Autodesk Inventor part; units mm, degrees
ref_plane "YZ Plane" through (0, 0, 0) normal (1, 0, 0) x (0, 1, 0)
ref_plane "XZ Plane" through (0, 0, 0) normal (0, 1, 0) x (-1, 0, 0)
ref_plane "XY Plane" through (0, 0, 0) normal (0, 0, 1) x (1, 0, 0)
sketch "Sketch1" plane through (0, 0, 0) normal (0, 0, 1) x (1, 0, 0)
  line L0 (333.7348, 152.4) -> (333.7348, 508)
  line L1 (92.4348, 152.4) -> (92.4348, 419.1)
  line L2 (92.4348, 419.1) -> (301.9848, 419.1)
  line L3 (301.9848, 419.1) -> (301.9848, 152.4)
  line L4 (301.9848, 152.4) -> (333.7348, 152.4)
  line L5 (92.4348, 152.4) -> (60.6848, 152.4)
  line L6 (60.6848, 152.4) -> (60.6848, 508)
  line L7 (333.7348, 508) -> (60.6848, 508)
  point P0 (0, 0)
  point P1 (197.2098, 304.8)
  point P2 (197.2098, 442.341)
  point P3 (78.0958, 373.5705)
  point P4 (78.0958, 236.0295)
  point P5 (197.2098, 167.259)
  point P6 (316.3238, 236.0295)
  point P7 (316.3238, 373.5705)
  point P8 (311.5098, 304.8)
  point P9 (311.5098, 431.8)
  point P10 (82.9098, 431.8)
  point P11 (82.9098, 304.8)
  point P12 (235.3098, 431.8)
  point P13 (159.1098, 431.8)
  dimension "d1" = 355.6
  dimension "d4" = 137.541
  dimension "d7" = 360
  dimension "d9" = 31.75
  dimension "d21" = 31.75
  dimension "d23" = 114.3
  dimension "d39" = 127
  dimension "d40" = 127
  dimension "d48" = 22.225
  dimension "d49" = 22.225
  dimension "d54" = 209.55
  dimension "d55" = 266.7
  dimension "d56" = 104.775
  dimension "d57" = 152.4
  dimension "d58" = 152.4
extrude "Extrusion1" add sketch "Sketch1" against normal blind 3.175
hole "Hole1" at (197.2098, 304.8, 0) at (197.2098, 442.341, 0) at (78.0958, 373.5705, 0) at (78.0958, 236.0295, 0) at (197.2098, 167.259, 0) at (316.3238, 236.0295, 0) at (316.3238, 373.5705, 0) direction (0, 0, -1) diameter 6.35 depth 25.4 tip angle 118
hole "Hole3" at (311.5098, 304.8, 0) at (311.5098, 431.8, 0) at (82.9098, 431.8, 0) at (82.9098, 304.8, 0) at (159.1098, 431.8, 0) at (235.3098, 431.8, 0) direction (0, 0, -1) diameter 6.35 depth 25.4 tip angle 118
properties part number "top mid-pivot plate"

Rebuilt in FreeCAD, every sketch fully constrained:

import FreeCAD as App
import Part
import Sketcher
Q = App.Units.Quantity

doc = App.newDocument("Part")
body = doc.addObject("PartDesign::Body", "Body")

sketch1 = body.newObject("Sketcher::SketchObject", "Sketch")
sketch1.AttachmentSupport = (doc.getObject("XY_Plane"), [""])
sketch1.MapMode = "FlatFace"
sketch1.addGeometry(Part.LineSegment(App.Vector(302, 152, 0), App.Vector(334, 152, 0)), False)
sketch1.addGeometry(Part.LineSegment(App.Vector(334, 152, 0), App.Vector(334, 508, 0)), False)
sketch1.addGeometry(Part.LineSegment(App.Vector(334, 508, 0), App.Vector(61, 508, 0)), False)
sketch1.addGeometry(Part.LineSegment(App.Vector(61, 508, 0), App.Vector(61, 152, 0)), False)
sketch1.addGeometry(Part.LineSegment(App.Vector(61, 152, 0), App.Vector(92, 152, 0)), False)
sketch1.addGeometry(Part.LineSegment(App.Vector(92, 152, 0), App.Vector(92, 419, 0)), False)
sketch1.addGeometry(Part.LineSegment(App.Vector(92, 419, 0), App.Vector(302, 419, 0)), False)
sketch1.addGeometry(Part.LineSegment(App.Vector(302, 419, 0), App.Vector(302, 152, 0)), False)
sketch1.addConstraint(Sketcher.Constraint("Coincident", 0, 2, 1, 1))
sketch1.addConstraint(Sketcher.Constraint("Coincident", 1, 2, 2, 1))
sketch1.addConstraint(Sketcher.Constraint("Coincident", 2, 2, 3, 1))
sketch1.addConstraint(Sketcher.Constraint("Coincident", 3, 2, 4, 1))
sketch1.addConstraint(Sketcher.Constraint("Coincident", 4, 2, 5, 1))
sketch1.addConstraint(Sketcher.Constraint("Coincident", 5, 2, 6, 1))
sketch1.addConstraint(Sketcher.Constraint("Coincident", 6, 2, 7, 1))
sketch1.addConstraint(Sketcher.Constraint("Coincident", 7, 2, 0, 1))
sketch1.addConstraint(Sketcher.Constraint("Horizontal", 0))
sketch1.addConstraint(Sketcher.Constraint("Vertical", 1))
sketch1.addConstraint(Sketcher.Constraint("Horizontal", 2))
sketch1.addConstraint(Sketcher.Constraint("Vertical", 3))
sketch1.addConstraint(Sketcher.Constraint("Horizontal", 4))
sketch1.addConstraint(Sketcher.Constraint("Vertical", 5))
sketch1.addConstraint(Sketcher.Constraint("Horizontal", 6))
sketch1.addConstraint(Sketcher.Constraint("Vertical", 7))
sketch1.addConstraint(Sketcher.Constraint("Horizontal", 0, 2, 3, 2))
sketch1.addConstraint(Sketcher.Constraint("Equal", 0, 4))
sketch1.addConstraint(Sketcher.Constraint("DistanceY", 1, 1, 1, 2, Q("14 in")))
sketch1.addConstraint(Sketcher.Constraint("DistanceY", 5, 1, 5, 2, Q("10.5 in")))
sketch1.addConstraint(Sketcher.Constraint("DistanceY", -1, 1, 0, 2, Q("6 in")))
sketch1.addConstraint(Sketcher.Constraint("DistanceX", 0, 1, 0, 2, Q("1.25 in")))
sketch1.addConstraint(Sketcher.Constraint("DistanceX", 6, 1, 6, 2, Q("8.25 in")))
sketch1.addConstraint(Sketcher.Constraint("DistanceX", -1, 1, 0, 2, Q("333.7348 mm")))
pad1 = body.newObject("PartDesign::Pad", "Pad")
pad1.Profile = sketch1
pad1.Length = Q("0.125 in")
pad1.Reversed = True

sketch2 = body.newObject("Sketcher::SketchObject", "Sketch001")
sketch2.AttachmentSupport = (doc.getObject("XY_Plane"), [""])
sketch2.MapMode = "FlatFace"
sketch2.addGeometry(Part.Circle(App.Vector(197.2, 304.8, 0), App.Vector(0, 0, 1), 3.2), False)
sketch2.addGeometry(Part.Circle(App.Vector(197.2, 442.3, 0), App.Vector(0, 0, 1), 3.2), False)
sketch2.addGeometry(Part.Circle(App.Vector(78.1, 373.6, 0), App.Vector(0, 0, 1), 3.2), False)
sketch2.addGeometry(Part.Circle(App.Vector(78.1, 236, 0), App.Vector(0, 0, 1), 3.2), False)
sketch2.addGeometry(Part.Circle(App.Vector(197.2, 167.3, 0), App.Vector(0, 0, 1), 3.2), False)
sketch2.addGeometry(Part.Circle(App.Vector(316.3, 236, 0), App.Vector(0, 0, 1), 3.2), False)
sketch2.addGeometry(Part.Circle(App.Vector(316.3, 373.6, 0), App.Vector(0, 0, 1), 3.2), False)
sketch2.addConstraint(Sketcher.Constraint("Equal", 0, 1))
sketch2.addConstraint(Sketcher.Constraint("Equal", 1, 2))
sketch2.addConstraint(Sketcher.Constraint("Equal", 2, 3))
sketch2.addConstraint(Sketcher.Constraint("Equal", 3, 4))
sketch2.addConstraint(Sketcher.Constraint("Equal", 4, 5))
sketch2.addConstraint(Sketcher.Constraint("Equal", 5, 6))
sketch2.addConstraint(Sketcher.Constraint("Horizontal", 3, 3, 5, 3))
sketch2.addConstraint(Sketcher.Constraint("Horizontal", 2, 3, 6, 3))
sketch2.addConstraint(Sketcher.Constraint("Vertical", 0, 3, 1, 3))
sketch2.addConstraint(Sketcher.Constraint("Vertical", 2, 3, 3, 3))
sketch2.addConstraint(Sketcher.Constraint("Vertical", 1, 3, 4, 3))
sketch2.addConstraint(Sketcher.Constraint("Vertical", 5, 3, 6, 3))
sketch2.addConstraint(Sketcher.Constraint("Diameter", 0, Q("0.25 in")))
sketch2.addConstraint(Sketcher.Constraint("DistanceY", -1, 1, 0, 3, Q("12 in")))
sketch2.addConstraint(Sketcher.Constraint("DistanceY", 4, 3, 1, 3, Q("10.83 in")))
sketch2.addConstraint(Sketcher.Constraint("DistanceY", -1, 1, 1, 3, Q("17.415 in")))
sketch2.addConstraint(Sketcher.Constraint("DistanceY", 3, 3, 2, 3, Q("5.415 in")))
sketch2.addConstraint(Sketcher.Constraint("DistanceY", -1, 1, 2, 3, Q("14.7075 in")))
sketch2.addConstraint(Sketcher.Constraint("DistanceX", -1, 1, 5, 3, Q("12.4537 in")))
sketch2.addConstraint(Sketcher.Constraint("DistanceX", -1, 1, 0, 3, Q("197.2098 mm")))
sketch2.addConstraint(Sketcher.Constraint("DistanceX", -1, 1, 2, 3, Q("78.0958 mm")))
doc.recompute()
hole = body.newObject("PartDesign::Hole", "Hole")
hole.Profile = sketch2
hole.ThreadType = "None"
hole.Diameter = Q("0.25 in")
hole.DepthType = "Dimension"
hole.Depth = Q("1 in")
hole.DrillPoint = "Angled"
hole.DrillPointAngle = 118

sketch3 = body.newObject("Sketcher::SketchObject", "Sketch002")
sketch3.AttachmentSupport = (doc.getObject("XY_Plane"), [""])
sketch3.MapMode = "FlatFace"
sketch3.addGeometry(Part.Circle(App.Vector(311.5, 304.8, 0), App.Vector(0, 0, 1), 3.2), False)
sketch3.addGeometry(Part.Circle(App.Vector(311.5, 431.8, 0), App.Vector(0, 0, 1), 3.2), False)
sketch3.addGeometry(Part.Circle(App.Vector(82.9, 431.8, 0), App.Vector(0, 0, 1), 3.2), False)
sketch3.addGeometry(Part.Circle(App.Vector(82.9, 304.8, 0), App.Vector(0, 0, 1), 3.2), False)
sketch3.addGeometry(Part.Circle(App.Vector(159.1, 431.8, 0), App.Vector(0, 0, 1), 3.2), False)
sketch3.addGeometry(Part.Circle(App.Vector(235.3, 431.8, 0), App.Vector(0, 0, 1), 3.2), False)
sketch3.addConstraint(Sketcher.Constraint("Equal", 0, 1))
sketch3.addConstraint(Sketcher.Constraint("Equal", 1, 2))
sketch3.addConstraint(Sketcher.Constraint("Equal", 2, 3))
sketch3.addConstraint(Sketcher.Constraint("Equal", 3, 4))
sketch3.addConstraint(Sketcher.Constraint("Equal", 4, 5))
sketch3.addConstraint(Sketcher.Constraint("Horizontal", 1, 3, 2, 3))
sketch3.addConstraint(Sketcher.Constraint("Horizontal", 0, 3, 3, 3))
sketch3.addConstraint(Sketcher.Constraint("Horizontal", 2, 3, 4, 3))
sketch3.addConstraint(Sketcher.Constraint("Horizontal", 4, 3, 5, 3))
sketch3.addConstraint(Sketcher.Constraint("Vertical", 0, 3, 1, 3))
sketch3.addConstraint(Sketcher.Constraint("Vertical", 2, 3, 3, 3))
sketch3.addConstraint(Sketcher.Constraint("Diameter", 0, Q("0.25 in")))
sketch3.addConstraint(Sketcher.Constraint("DistanceY", -1, 1, 0, 3, Q("12 in")))
sketch3.addConstraint(Sketcher.Constraint("DistanceY", -1, 1, 1, 3, Q("17 in")))
sketch3.addConstraint(Sketcher.Constraint("DistanceX", 2, 3, 1, 3, Q("9 in")))
sketch3.addConstraint(Sketcher.Constraint("DistanceX", 2, 3, 4, 3, Q("3 in")))
sketch3.addConstraint(Sketcher.Constraint("DistanceX", 5, 3, 1, 3, Q("3 in")))
sketch3.addConstraint(Sketcher.Constraint("DistanceX", -1, 1, 0, 3, Q("311.5098 mm")))
doc.recompute()
hole2 = body.newObject("PartDesign::Hole", "Hole001")
hole2.Profile = sketch3
hole2.ThreadType = "None"
hole2.Diameter = Q("0.25 in")
hole2.DepthType = "Dimension"
hole2.Depth = Q("1 in")
hole2.DrillPoint = "Angled"
hole2.DrillPointAngle = 118

doc.recompute()
